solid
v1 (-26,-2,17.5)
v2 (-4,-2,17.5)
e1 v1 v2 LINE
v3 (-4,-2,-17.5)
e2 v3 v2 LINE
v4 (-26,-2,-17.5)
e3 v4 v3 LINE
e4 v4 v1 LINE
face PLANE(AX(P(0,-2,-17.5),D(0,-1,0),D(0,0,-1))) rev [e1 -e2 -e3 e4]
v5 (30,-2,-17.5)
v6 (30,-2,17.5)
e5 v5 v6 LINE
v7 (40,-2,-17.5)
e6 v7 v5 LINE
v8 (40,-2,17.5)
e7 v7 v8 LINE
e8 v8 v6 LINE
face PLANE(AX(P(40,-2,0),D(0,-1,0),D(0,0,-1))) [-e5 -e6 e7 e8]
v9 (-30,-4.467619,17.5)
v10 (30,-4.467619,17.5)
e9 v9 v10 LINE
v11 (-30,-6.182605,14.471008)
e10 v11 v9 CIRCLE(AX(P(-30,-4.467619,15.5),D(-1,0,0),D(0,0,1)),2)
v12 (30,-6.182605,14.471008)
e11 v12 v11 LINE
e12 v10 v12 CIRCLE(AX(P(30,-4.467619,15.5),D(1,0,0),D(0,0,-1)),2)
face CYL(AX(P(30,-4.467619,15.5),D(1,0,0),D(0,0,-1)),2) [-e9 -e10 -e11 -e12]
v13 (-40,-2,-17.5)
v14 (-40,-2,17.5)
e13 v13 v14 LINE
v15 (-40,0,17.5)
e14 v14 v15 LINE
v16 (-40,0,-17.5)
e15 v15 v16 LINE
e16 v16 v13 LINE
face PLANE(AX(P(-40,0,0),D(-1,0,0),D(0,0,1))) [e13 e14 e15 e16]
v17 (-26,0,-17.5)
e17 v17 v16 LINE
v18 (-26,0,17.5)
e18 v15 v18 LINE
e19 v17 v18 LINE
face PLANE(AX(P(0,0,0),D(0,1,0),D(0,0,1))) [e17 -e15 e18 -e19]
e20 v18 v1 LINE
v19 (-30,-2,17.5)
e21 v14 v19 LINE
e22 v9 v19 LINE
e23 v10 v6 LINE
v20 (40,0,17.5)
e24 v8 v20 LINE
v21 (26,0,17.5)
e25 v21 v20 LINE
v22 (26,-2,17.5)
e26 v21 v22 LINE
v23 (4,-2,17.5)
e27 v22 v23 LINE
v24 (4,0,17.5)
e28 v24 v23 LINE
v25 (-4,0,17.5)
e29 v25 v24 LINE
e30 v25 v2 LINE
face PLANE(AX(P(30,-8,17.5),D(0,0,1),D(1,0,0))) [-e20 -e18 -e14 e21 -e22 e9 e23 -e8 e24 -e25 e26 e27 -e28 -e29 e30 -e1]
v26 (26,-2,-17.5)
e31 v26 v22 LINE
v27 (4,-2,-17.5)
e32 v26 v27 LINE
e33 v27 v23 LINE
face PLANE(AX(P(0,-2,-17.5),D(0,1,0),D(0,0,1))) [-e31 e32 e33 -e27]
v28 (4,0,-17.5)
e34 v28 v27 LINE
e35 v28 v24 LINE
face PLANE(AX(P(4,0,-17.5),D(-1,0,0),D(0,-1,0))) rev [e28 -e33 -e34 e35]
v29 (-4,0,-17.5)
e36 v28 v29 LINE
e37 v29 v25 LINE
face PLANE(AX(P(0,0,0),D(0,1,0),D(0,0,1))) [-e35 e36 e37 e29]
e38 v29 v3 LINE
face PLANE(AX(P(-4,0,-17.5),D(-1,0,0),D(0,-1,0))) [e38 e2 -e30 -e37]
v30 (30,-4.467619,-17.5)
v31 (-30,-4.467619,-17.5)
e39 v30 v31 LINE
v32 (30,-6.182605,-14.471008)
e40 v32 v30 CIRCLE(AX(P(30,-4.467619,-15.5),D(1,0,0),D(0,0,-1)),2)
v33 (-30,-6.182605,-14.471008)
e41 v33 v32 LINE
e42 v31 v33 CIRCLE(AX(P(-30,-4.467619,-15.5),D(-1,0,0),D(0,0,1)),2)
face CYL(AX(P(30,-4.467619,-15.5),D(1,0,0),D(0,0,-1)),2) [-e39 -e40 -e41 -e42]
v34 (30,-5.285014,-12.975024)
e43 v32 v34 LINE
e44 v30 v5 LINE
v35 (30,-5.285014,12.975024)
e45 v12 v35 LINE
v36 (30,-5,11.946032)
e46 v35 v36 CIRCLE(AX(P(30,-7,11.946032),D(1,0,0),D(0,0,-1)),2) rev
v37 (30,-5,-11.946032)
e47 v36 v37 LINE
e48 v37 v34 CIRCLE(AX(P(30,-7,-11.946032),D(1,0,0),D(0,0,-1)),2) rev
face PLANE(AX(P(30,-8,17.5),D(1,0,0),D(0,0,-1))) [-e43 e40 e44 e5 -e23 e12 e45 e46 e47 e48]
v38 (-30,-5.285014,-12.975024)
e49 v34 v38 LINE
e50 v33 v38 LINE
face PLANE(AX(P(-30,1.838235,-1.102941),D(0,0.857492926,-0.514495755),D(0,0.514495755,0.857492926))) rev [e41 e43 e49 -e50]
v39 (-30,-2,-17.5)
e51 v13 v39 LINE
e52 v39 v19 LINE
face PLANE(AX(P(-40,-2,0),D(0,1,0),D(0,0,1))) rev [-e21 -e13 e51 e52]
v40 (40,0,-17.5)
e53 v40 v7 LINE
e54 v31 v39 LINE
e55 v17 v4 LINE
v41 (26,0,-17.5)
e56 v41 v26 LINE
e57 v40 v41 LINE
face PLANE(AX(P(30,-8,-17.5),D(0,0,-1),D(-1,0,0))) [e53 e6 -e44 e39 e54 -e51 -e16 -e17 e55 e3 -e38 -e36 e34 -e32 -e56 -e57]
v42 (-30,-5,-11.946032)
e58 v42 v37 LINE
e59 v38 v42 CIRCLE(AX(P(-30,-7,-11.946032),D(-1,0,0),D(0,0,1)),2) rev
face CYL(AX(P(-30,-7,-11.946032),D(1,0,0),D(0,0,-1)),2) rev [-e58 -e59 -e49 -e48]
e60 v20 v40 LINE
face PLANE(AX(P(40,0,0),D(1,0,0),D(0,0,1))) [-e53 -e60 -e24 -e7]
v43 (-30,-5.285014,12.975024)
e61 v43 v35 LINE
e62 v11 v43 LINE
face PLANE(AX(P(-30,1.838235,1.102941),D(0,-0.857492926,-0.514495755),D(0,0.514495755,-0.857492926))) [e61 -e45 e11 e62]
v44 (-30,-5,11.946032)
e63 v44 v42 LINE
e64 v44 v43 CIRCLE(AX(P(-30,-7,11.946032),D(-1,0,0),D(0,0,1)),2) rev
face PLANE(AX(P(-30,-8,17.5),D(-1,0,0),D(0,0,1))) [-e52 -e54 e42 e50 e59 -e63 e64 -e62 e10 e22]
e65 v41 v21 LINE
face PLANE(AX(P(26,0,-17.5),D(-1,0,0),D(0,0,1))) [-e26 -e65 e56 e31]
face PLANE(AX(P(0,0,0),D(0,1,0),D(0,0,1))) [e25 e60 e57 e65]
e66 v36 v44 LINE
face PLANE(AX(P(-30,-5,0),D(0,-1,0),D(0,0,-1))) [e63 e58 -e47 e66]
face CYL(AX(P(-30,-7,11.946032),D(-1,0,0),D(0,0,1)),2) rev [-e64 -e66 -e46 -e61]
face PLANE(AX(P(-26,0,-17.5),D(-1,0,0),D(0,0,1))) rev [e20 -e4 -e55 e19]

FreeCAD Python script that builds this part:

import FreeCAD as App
import Part
import Sketcher

V = App.Vector


def edges_at(feature, points):
    """Names of the edges that pass closest to the given points."""
    edges = feature.Shape.Edges
    near = lambda p: min(range(len(edges)), key=lambda i: edges[i].distToShape(Part.Vertex(*p))[0])
    return sorted({f"Edge{near(p) + 1}" for p in points})


def add_polygon(sketch, points):
    """Adds a closed chain of lines whose ends are joined by coincident constraints."""
    first, n = sketch.GeometryCount, len(points)
    for a, b in zip(points, points[1:] + points[:1]):
        sketch.addGeometry(Part.LineSegment(App.Vector(*a, 0), App.Vector(*b, 0)), False)
    for i in range(n):
        sketch.addConstraint(Sketcher.Constraint("Coincident", first + i, 2, first + (i + 1) % n, 1))

doc = App.newDocument("Part")
body = doc.addObject("PartDesign::Body", "Body")

sketch1 = doc.addObject("Sketcher::SketchObject", "Sketch")
body.addObject(sketch1)
sketch1.AttachmentSupport = (doc.XZ_Plane, [""])
sketch1.MapMode = "FlatFace"
add_polygon(sketch1, [(-30, -18), (-30, 18), (30, 18), (30, -18)])
sketch1.addConstraint([
    Sketcher.Constraint("Vertical", 0),
    Sketcher.Constraint("Horizontal", 1),
    Sketcher.Constraint("Vertical", 2),
    Sketcher.Constraint("Horizontal", 3),
    Sketcher.Constraint("Symmetric", 0, 2, 2, 2, -1, 1),
    Sketcher.Constraint("DistanceX", 1, 1, 1, 2, 60.0),
    Sketcher.Constraint("DistanceY", 0, 1, 0, 2, 35.0),
])
pad1 = doc.addObject("PartDesign::Pad", "Pad")
body.addObject(pad1)
pad1.Profile = sketch1
pad1.Length = 8

sketch2 = doc.addObject("Sketcher::SketchObject", "Sketch001")
body.addObject(sketch2)
sketch2.AttachmentSupport = (doc.YZ_Plane, [""])
sketch2.MapMode = "FlatFace"
sketch2.AttachmentOffset = App.Placement(V(0, 0, 30), App.Rotation())
add_polygon(sketch2, [(-5, 12), (-8, 18), (-8, -18), (-5, -12)])
sketch2.addConstraint([
    Sketcher.Constraint("Vertical", 1),
    Sketcher.Constraint("Vertical", 3),
    Sketcher.Constraint("Equal", 0, 2),
    Sketcher.Constraint("DistanceY", 1, 2, 1, 1, 35.0),
    Sketcher.Constraint("DistanceY", 3, 1, 3, 2, 25.0),
    Sketcher.Constraint("DistanceX", 0, 2, -1, 1, 8.0),
    Sketcher.Constraint("DistanceX", 2, 2, -1, 1, 5.0),
    Sketcher.Constraint("DistanceY", -1, 1, 0, 2, 17.5),
])
pocket1 = doc.addObject("PartDesign::Pocket", "Pocket")
body.addObject(pocket1)
pocket1.Profile = sketch2
pocket1.Type = "ThroughAll"
pocket1.Midplane = True
doc.recompute()

fillet = doc.addObject("PartDesign::Fillet", "Fillet")
body.addObject(fillet)
fillet.Base = (pocket1, edges_at(pocket1, [
    (0, -8, -17.5),
    (0, -5, 12.5),
    (0, -5, -12.5),
    (0, -8, 17.5),
]))
fillet.Radius = 2

sketch3 = doc.addObject("Sketcher::SketchObject", "Sketch002")
body.addObject(sketch3)
sketch3.AttachmentSupport = (doc.XY_Plane, [""])
sketch3.MapMode = "FlatFace"
sketch3.AttachmentOffset = App.Placement(V(0, 0, 17.5), App.Rotation())
add_polygon(sketch3, [(-26, 0), (-26, -2), (-4, -2), (-4, 0)])
add_polygon(sketch3, [(4, 0), (4, -2), (26, -2), (26, 0)])
sketch3.addConstraint([
    Sketcher.Constraint("Vertical", 0),
    Sketcher.Constraint("Horizontal", 1),
    Sketcher.Constraint("Vertical", 2),
    Sketcher.Constraint("Horizontal", 3),
    Sketcher.Constraint("Vertical", 4),
    Sketcher.Constraint("Horizontal", 5),
    Sketcher.Constraint("Vertical", 6),
    Sketcher.Constraint("Horizontal", 7),
    Sketcher.Constraint("Symmetric", 3, 2, 6, 2, -1, 1),
    Sketcher.Constraint("Symmetric", 1, 2, 4, 2, -2),
    Sketcher.Constraint("PointOnObject", 2, 2, -1),
    Sketcher.Constraint("DistanceX", 1, 1, 1, 2, 22.0),
    Sketcher.Constraint("DistanceY", 0, 2, 0, 1, 2.0),
    Sketcher.Constraint("DistanceX", 0, 2, -1, 1, 26.0),
])
pocket2 = doc.addObject("PartDesign::Pocket", "Pocket001")
body.addObject(pocket2)
pocket2.Profile = sketch3
pocket2.Type = "ThroughAll"

sketch4 = doc.addObject("Sketcher::SketchObject", "Sketch003")
body.addObject(sketch4)
sketch4.AttachmentSupport = (doc.YZ_Plane, [""])
sketch4.MapMode = "FlatFace"
sketch4.AttachmentOffset = App.Placement(V(0, 0, -30), App.Rotation())
add_polygon(sketch4, [(0, -17.5), (-2, -17.5), (-2, 17.5), (0, 17.5)])
sketch4.addConstraint([
    Sketcher.Constraint("Horizontal", 0),
    Sketcher.Constraint("Vertical", 1),
    Sketcher.Constraint("Horizontal", 2),
    Sketcher.Constraint("Vertical", 3),
    Sketcher.Constraint("Symmetric", 2, 2, 3, 2, -1, 1),
    Sketcher.Constraint("DistanceX", 0, 2, 0, 1, 2.0),
    Sketcher.Constraint("DistanceY", 1, 1, 1, 2, 35.0),
])
pad2 = doc.addObject("PartDesign::Pad", "Pad001")
body.addObject(pad2)
pad2.Profile = sketch4
pad2.Length = 10
pad2.Reversed = True
doc.recompute()

mirrored = doc.addObject("PartDesign::Mirrored", "Mirrored")
body.addObject(mirrored)
mirrored.Originals = [pad2]
mirrored.MirrorPlane = (doc.YZ_Plane, [""])
body.Tip = mirrored

doc.recompute()
